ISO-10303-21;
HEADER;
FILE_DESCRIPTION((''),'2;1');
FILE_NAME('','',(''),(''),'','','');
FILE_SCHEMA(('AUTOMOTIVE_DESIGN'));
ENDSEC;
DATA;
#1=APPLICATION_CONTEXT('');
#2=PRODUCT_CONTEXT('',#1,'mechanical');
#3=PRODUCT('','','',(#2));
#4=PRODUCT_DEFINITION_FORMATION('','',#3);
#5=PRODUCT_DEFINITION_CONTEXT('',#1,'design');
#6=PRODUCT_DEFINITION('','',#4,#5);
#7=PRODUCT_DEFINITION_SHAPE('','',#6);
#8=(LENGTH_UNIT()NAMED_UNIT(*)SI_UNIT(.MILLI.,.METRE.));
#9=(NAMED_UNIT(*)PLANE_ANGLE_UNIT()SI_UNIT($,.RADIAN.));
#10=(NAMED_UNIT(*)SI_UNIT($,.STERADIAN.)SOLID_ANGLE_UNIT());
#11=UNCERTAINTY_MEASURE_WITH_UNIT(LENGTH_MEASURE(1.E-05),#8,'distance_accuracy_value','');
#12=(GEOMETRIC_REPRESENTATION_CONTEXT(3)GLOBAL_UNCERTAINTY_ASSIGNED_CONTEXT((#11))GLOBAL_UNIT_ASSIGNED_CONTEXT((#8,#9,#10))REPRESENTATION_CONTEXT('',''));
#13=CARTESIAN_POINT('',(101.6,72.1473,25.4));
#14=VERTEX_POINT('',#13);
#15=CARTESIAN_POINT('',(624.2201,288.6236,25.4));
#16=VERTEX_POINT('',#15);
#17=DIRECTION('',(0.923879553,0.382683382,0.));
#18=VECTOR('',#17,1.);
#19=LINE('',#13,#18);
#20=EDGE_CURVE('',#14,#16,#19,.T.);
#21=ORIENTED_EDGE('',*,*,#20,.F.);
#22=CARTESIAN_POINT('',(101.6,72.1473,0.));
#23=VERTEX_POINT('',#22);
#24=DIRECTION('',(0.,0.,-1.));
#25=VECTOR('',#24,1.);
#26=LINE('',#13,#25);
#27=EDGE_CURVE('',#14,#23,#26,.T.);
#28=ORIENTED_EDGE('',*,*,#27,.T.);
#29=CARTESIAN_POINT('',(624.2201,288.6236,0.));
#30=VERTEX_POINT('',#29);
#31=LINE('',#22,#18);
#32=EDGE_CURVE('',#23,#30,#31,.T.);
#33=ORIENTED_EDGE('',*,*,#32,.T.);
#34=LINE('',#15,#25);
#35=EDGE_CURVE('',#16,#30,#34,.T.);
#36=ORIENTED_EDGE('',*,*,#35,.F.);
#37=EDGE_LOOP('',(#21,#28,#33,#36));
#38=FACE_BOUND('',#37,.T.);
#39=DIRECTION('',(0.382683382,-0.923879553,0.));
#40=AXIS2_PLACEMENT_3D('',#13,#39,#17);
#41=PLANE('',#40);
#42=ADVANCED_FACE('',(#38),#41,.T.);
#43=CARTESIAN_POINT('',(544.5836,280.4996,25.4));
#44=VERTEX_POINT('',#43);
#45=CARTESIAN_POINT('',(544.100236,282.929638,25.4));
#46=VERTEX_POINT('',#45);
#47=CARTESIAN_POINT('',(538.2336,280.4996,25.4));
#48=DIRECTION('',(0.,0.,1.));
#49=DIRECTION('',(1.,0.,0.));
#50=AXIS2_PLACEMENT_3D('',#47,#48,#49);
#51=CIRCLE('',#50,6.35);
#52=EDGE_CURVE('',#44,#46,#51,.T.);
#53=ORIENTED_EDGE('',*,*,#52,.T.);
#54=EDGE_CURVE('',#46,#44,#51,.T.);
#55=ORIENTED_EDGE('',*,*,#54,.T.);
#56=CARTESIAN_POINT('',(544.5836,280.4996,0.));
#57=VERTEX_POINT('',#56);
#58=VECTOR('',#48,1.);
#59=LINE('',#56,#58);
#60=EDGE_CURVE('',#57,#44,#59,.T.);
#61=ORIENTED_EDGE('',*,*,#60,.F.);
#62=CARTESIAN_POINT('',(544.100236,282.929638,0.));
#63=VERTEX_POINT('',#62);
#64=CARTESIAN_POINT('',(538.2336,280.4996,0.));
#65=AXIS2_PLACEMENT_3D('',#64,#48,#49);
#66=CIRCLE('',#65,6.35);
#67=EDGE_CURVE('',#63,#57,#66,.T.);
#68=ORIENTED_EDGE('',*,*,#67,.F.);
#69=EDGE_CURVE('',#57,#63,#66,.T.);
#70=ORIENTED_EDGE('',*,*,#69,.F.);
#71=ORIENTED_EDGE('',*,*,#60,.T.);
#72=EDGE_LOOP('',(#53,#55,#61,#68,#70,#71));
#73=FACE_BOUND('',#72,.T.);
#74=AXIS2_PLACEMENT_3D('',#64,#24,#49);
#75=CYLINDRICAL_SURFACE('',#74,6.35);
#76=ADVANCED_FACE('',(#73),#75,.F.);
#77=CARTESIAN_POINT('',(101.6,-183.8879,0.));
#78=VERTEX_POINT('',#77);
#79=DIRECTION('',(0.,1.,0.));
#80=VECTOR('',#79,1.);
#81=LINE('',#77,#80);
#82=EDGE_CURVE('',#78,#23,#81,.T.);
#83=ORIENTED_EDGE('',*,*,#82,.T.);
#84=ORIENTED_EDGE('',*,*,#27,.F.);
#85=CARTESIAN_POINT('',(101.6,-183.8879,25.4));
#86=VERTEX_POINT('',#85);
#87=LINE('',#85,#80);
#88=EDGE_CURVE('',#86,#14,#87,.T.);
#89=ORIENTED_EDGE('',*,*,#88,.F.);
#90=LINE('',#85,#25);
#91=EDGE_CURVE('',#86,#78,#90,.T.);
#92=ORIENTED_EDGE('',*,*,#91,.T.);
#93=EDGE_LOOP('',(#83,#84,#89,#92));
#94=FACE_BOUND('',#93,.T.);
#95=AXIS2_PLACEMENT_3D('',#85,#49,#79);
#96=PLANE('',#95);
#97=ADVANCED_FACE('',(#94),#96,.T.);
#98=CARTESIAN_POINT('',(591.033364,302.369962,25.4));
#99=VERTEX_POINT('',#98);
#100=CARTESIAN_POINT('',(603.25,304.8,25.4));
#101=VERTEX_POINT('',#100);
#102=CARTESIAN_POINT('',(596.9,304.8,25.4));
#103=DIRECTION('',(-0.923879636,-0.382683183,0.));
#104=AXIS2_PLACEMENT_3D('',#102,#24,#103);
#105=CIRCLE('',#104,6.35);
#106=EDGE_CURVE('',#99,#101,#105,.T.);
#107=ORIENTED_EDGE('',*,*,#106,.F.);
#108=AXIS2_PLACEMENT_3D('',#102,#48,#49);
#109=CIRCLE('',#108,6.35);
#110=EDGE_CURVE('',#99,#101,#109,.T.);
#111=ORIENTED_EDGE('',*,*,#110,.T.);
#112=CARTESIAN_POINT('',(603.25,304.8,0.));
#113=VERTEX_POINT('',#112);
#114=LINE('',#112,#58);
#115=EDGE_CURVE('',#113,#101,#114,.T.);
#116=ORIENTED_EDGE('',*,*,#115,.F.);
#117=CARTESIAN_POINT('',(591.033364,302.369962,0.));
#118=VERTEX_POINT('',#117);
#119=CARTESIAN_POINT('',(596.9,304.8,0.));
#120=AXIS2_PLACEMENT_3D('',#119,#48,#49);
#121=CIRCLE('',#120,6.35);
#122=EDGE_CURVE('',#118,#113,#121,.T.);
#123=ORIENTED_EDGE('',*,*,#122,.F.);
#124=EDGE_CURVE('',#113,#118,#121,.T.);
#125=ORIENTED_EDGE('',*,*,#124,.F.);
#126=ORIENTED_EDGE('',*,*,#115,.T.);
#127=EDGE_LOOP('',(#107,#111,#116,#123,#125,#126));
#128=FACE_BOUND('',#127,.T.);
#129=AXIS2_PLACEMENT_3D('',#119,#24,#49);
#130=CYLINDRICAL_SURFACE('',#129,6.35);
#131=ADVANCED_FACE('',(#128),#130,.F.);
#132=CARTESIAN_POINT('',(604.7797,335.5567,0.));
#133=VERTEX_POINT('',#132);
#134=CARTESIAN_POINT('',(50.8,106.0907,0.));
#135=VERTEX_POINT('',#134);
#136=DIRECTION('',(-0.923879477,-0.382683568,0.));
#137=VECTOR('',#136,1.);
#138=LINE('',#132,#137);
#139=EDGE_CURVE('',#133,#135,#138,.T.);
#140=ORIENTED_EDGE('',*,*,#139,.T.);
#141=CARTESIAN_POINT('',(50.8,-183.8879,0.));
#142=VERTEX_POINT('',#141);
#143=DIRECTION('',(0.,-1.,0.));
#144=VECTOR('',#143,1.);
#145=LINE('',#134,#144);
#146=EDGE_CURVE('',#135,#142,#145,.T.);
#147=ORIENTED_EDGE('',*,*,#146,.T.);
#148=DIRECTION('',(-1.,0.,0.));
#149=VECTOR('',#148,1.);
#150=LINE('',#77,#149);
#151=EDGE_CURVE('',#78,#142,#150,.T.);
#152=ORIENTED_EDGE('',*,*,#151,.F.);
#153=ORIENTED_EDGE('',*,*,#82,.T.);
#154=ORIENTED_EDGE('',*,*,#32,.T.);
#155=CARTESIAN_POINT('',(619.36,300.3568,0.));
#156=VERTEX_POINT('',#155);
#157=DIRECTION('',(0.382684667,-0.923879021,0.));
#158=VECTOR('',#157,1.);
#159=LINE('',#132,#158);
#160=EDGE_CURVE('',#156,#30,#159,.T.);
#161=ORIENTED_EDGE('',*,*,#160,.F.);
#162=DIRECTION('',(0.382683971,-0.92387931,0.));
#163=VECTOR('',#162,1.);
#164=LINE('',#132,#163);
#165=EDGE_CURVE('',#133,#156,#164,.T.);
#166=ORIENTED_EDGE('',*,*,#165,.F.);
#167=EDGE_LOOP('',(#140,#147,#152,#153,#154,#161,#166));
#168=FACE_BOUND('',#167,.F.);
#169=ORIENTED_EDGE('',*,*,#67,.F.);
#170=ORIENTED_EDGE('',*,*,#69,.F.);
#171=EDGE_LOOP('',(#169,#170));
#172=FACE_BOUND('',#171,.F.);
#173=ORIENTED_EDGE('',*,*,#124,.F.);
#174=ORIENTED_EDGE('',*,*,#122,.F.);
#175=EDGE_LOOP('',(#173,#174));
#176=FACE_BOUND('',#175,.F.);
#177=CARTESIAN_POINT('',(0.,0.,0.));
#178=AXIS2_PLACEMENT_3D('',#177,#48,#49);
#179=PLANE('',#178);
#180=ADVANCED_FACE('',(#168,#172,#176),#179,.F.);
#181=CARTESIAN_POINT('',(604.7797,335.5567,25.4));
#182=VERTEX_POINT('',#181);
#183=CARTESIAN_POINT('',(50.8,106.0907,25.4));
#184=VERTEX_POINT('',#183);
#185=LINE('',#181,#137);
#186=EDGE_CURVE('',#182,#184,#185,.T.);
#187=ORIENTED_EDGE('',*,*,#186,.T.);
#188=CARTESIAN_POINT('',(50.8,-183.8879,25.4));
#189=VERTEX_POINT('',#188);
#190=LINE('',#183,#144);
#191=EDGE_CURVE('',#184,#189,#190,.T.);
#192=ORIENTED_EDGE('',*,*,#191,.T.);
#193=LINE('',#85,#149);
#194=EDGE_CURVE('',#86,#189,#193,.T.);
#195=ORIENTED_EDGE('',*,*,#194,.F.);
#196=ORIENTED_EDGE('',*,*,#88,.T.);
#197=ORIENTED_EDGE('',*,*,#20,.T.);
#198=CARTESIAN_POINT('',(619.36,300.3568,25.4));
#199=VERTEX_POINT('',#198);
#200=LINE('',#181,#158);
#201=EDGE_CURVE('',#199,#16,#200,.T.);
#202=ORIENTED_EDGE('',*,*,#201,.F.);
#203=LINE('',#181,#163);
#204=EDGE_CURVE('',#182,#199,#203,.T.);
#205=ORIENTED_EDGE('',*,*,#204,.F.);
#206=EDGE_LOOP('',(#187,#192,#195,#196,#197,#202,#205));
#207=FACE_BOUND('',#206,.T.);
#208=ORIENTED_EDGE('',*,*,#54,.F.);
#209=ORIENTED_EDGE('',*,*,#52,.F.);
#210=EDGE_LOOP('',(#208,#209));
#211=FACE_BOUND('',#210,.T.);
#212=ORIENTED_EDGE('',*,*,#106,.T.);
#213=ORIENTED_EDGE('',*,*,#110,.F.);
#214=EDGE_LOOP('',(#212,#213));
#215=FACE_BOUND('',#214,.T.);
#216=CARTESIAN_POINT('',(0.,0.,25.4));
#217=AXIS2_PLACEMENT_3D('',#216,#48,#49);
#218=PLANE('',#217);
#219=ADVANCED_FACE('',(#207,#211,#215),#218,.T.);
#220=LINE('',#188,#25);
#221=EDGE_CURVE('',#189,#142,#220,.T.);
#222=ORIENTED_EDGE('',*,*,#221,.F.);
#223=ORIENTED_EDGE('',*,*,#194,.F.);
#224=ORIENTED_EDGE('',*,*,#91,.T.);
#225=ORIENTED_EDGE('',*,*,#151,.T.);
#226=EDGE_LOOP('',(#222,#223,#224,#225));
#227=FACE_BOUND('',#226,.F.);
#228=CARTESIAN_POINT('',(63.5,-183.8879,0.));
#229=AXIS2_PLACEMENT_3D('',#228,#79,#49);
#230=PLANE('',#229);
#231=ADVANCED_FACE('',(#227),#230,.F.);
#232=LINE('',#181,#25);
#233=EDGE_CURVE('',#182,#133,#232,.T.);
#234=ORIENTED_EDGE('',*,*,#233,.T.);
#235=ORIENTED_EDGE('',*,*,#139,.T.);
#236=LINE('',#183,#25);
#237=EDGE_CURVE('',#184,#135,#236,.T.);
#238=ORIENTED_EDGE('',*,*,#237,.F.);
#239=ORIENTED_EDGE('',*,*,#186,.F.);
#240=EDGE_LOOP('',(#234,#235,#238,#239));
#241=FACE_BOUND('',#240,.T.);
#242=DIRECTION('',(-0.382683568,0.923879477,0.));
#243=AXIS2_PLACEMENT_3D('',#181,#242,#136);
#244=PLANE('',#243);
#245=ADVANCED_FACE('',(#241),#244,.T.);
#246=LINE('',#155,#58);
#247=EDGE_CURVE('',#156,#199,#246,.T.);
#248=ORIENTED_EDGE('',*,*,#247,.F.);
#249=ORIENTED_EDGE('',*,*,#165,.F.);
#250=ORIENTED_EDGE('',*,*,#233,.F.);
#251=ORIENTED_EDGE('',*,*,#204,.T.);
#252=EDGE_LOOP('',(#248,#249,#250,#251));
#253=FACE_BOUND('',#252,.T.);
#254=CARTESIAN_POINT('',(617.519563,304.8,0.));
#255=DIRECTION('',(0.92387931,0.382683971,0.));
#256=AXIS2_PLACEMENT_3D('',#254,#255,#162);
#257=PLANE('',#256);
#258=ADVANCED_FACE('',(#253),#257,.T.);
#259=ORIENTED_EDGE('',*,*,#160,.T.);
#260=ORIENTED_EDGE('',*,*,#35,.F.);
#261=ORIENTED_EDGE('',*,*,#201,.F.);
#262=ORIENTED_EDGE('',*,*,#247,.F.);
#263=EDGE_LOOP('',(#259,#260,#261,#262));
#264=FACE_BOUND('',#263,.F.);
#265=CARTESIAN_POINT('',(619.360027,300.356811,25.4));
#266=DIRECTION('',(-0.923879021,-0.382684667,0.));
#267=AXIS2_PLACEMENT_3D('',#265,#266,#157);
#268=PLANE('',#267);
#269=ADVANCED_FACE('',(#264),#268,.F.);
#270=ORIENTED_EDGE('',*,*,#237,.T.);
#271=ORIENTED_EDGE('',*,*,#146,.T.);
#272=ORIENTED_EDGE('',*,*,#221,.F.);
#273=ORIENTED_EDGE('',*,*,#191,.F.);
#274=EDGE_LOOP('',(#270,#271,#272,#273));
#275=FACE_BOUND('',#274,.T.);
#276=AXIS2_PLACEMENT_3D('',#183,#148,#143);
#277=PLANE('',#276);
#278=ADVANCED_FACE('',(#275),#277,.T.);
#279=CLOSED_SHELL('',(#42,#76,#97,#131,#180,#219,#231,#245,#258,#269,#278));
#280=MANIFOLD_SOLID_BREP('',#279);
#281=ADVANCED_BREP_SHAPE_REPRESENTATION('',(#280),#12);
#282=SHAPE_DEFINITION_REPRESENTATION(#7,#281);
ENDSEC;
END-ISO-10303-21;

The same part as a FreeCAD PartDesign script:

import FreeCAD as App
import Part
import Sketcher
Q = App.Units.Quantity

doc = App.newDocument("Part")
body = doc.addObject("PartDesign::Body", "Body")

# Sketch on XY plane
sketch1 = body.newObject("Sketcher::SketchObject", "Sketch")
sketch1.AttachmentSupport = (doc.getObject("XY_Plane"), [""])
sketch1.MapMode = "FlatFace"
sketch1.addGeometry([
    Part.LineSegment(App.Vector(63.5, -183.8879, 0), App.Vector(88.9, -183.8879, 0)),  # 0
    Part.LineSegment(App.Vector(88.9, -183.8879, 0), App.Vector(88.9, 80.6331, 0)),  # 1
    Part.LineSegment(App.Vector(88.9, 80.6331, 0), App.Vector(619.36, 300.3568, 0)),  # 2
    Part.LineSegment(App.Vector(619.36, 300.3568, 0), App.Vector(609.6398, 323.8234, 0)),  # 3
    Part.LineSegment(App.Vector(609.6398, 323.8234, 0), App.Vector(63.5, 97.6049, 0)),  # 4
    Part.LineSegment(App.Vector(63.5, 97.6049, 0), App.Vector(63.5, -183.8879, 0)),  # 5
    Part.Circle(App.Vector(596.9, 304.8, 0), App.Vector(0, 0, 1), 6.35),  # 6
    Part.Circle(App.Vector(538.2336, 280.4996, 0), App.Vector(0, 0, 1), 6.35),  # 7
], False)
sketch1.addConstraint([
    Sketcher.Constraint("Coincident", 0, 2, 1, 1),
    Sketcher.Constraint("Coincident", 1, 2, 2, 1),
    Sketcher.Constraint("Coincident", 2, 2, 3, 1),
    Sketcher.Constraint("Coincident", 3, 2, 4, 1),
    Sketcher.Constraint("Coincident", 4, 2, 5, 1),
    Sketcher.Constraint("Coincident", 5, 2, 0, 1),
    Sketcher.Constraint("Horizontal", 0),
    Sketcher.Constraint("Vertical", 1),
    Sketcher.Constraint("Vertical", 5),
    Sketcher.Constraint("Equal", 6, 7),
    Sketcher.Constraint("Perpendicular", 2, 3),
    Sketcher.Constraint("Perpendicular", 3, 4),
    Sketcher.Constraint("Diameter", 6, Q("0.5 in")),
    Sketcher.Constraint("DistanceX", 0, 1, 0, 2, Q("1 in")),
    Sketcher.Constraint("Distance", 3, Q("1 in")),
    Sketcher.Constraint("DistanceX", 4, 2, 6, 3, Q("21 in")),
    Sketcher.Constraint("DistanceX", -1, 1, 4, 2, Q("2.5 in")),
    Sketcher.Constraint("Angle", 2, Q("22.5 deg")),
    Sketcher.Constraint("DistanceY", -1, 1, 6, 3, Q("12 in")),
    Sketcher.Constraint("Distance", 4, Q("591.1375 mm")),
    Sketcher.Constraint("DistanceY", 5, 2, 5, 1, Q("11.0824 in")),
    Sketcher.Constraint("DistanceX", -1, 1, 7, 3, Q("21.1903 in")),
    Sketcher.Constraint("DistanceY", -1, 1, 7, 3, Q("11.0433 in")),
    Sketcher.Constraint("DistanceY", 0, 2, -1, 1, Q("183.888 mm")),
])
pad1 = body.newObject("PartDesign::Pad", "Pad")
pad1.Profile = sketch1
pad1.Length = Q("1 in")

# Sketch on XY plane
sketch2 = body.newObject("Sketcher::SketchObject", "Sketch001")
sketch2.AttachmentSupport = (doc.getObject("XY_Plane"), [""])
sketch2.MapMode = "FlatFace"
sketch2.AttachmentOffset = App.Placement(App.Vector(0, 0, 1 * 25.4), App.Rotation())
sketch2.addGeometry([
    Part.LineSegment(App.Vector(624.2201, 288.6236, 0), App.Vector(619.360027, 300.356811, 0)),  # 0
    Part.LineSegment(App.Vector(619.36, 300.3568, 0), App.Vector(88.9, 80.6331, 0)),  # 1
    Part.LineSegment(App.Vector(88.9, 80.6331, 0), App.Vector(88.9, -183.8879, 0)),  # 2
    Part.LineSegment(App.Vector(88.9, -183.8879, 0), App.Vector(101.6, -183.8879, 0)),  # 3
    Part.LineSegment(App.Vector(101.6, -183.8879, 0), App.Vector(101.6, 72.1473, 0)),  # 4
    Part.LineSegment(App.Vector(101.6, 72.1473, 0), App.Vector(624.2201, 288.6236, 0)),  # 5
    Part.LineSegment(App.Vector(63.5, 97.6049, 0), App.Vector(609.6398, 323.8234, 0)),  # 6
    Part.LineSegment(App.Vector(609.6398, 323.8234, 0), App.Vector(604.7797, 335.5567, 0)),  # 7
    Part.LineSegment(App.Vector(604.7797, 335.5567, 0), App.Vector(50.8, 106.0907, 0)),  # 8
    Part.LineSegment(App.Vector(50.8, 106.0907, 0), App.Vector(50.8, -183.8879, 0)),  # 9
    Part.LineSegment(App.Vector(50.8, -183.8879, 0), App.Vector(63.5, -183.8879, 0)),  # 10
    Part.LineSegment(App.Vector(63.5, -183.8879, 0), App.Vector(63.5, 97.6049, 0)),  # 11
], False)
sketch2.addConstraint([
    Sketcher.Constraint("Coincident", 0, 2, 1, 1),
    Sketcher.Constraint("Coincident", 1, 2, 2, 1),
    Sketcher.Constraint("Coincident", 2, 2, 3, 1),
    Sketcher.Constraint("Coincident", 3, 2, 4, 1),
    Sketcher.Constraint("Coincident", 4, 2, 5, 1),
    Sketcher.Constraint("Coincident", 5, 2, 0, 1),
    Sketcher.Constraint("Coincident", 6, 2, 7, 1),
    Sketcher.Constraint("Coincident", 7, 2, 8, 1),
    Sketcher.Constraint("Coincident", 8, 2, 9, 1),
    Sketcher.Constraint("Coincident", 9, 2, 10, 1),
    Sketcher.Constraint("Coincident", 10, 2, 11, 1),
    Sketcher.Constraint("Coincident", 11, 2, 6, 1),
    Sketcher.Constraint("Vertical", 2),
    Sketcher.Constraint("Horizontal", 3),
    Sketcher.Constraint("Vertical", 4),
    Sketcher.Constraint("Vertical", 9),
    Sketcher.Constraint("Horizontal", 10),
    Sketcher.Constraint("Vertical", 11),
    Sketcher.Constraint("Perpendicular", 0, 1),
    Sketcher.Constraint("Parallel", 1, 5),
    Sketcher.Constraint("Parallel", 5, 6),
    Sketcher.Constraint("Perpendicular", 6, 7),
    Sketcher.Constraint("Perpendicular", 7, 8),
    Sketcher.Constraint("Horizontal", 3, 2, 9, 2),
    Sketcher.Constraint("Equal", 3, 10),
    Sketcher.Constraint("Equal", 0, 7),
    Sketcher.Constraint("DistanceX", -1, 1, 8, 2, Q("2 in")),
    Sketcher.Constraint("DistanceX", 8, 2, 4, 2, Q("2 in")),
    Sketcher.Constraint("DistanceX", 10, 2, 2, 2, Q("1 in")),
    Sketcher.Constraint("Angle", 0, Q("112.5 deg")),
    Sketcher.Constraint("Distance", 0, Q("0.5 in")),
    Sketcher.Constraint("DistanceY", 11, 1, 11, 2, Q("11.0824 in")),
    Sketcher.Constraint("DistanceY", 2, 2, 2, 1, Q("264.521 mm")),
    Sketcher.Constraint("DistanceX", -1, 1, 5, 2, Q("24.5756 in")),
    Sketcher.Constraint("DistanceY", -1, 1, 7, 2, Q("13.2109 in")),
    Sketcher.Constraint("DistanceY", -1, 1, 8, 2, Q("4.1768 in")),
])
pad2 = body.newObject("PartDesign::Pad", "Pad001")
pad2.Profile = sketch2
pad2.Length = Q("1 in")
pad2.Reversed = True

doc.recompute()
